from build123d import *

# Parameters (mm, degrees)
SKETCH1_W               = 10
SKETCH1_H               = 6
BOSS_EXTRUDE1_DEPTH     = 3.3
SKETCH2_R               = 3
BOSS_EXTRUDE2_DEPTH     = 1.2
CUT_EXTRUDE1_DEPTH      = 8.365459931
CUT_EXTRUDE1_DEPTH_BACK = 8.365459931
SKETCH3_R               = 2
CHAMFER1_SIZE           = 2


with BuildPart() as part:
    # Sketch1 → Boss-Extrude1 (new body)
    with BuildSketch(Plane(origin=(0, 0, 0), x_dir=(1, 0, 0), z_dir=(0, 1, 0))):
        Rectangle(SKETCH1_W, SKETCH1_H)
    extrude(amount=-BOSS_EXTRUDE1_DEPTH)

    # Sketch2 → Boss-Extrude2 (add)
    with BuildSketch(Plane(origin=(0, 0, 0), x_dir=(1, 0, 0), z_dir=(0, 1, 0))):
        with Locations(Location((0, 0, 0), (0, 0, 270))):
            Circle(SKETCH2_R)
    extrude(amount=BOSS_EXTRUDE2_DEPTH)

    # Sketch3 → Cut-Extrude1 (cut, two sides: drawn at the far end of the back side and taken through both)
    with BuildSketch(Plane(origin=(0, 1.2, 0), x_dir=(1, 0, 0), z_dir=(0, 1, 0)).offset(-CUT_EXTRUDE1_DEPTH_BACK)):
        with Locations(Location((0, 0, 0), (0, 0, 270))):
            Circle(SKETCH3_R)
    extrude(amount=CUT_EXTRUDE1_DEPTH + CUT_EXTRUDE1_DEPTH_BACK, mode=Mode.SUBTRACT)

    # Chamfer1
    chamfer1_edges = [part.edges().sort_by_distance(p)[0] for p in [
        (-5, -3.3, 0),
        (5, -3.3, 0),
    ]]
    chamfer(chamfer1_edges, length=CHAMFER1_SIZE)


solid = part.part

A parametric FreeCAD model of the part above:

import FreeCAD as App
import Part
import Sketcher
from FreeCAD import Vector
Q = App.Units.Quantity


def edges_at(feature, points):
    """Names of the edges that pass closest to the given points."""
    edges = feature.Shape.Edges
    near = lambda p: min(range(len(edges)), key=lambda i: edges[i].distToShape(Part.Vertex(*p))[0])
    return sorted({f"Edge{near(p) + 1}" for p in points})

doc = App.newDocument("Part")
body = doc.addObject("PartDesign::Body", "Body")

# Sketch on XZ plane
sketch1 = doc.addObject("Sketcher::SketchObject", "Sketch")
body.addObject(sketch1)
sketch1.AttachmentSupport = (doc.XZ_Plane, [""])
sketch1.MapMode = "FlatFace"
sketch1.addGeometry([
    Part.LineSegment(Vector(-5, -3, 0), Vector(-5, 3, 0)),
    Part.LineSegment(Vector(-5, 3, 0), Vector(5, 3, 0)),
    Part.LineSegment(Vector(5, 3, 0), Vector(5, -3, 0)),
    Part.LineSegment(Vector(5, -3, 0), Vector(-5, -3, 0)),
], False)
sketch1.addConstraint([
    Sketcher.Constraint("Coincident", 0, 2, 1, 1),
    Sketcher.Constraint("Coincident", 1, 2, 2, 1),
    Sketcher.Constraint("Coincident", 2, 2, 3, 1),
    Sketcher.Constraint("Coincident", 3, 2, 0, 1),
    Sketcher.Constraint("Vertical", 0),
    Sketcher.Constraint("Horizontal", 1),
    Sketcher.Constraint("Vertical", 2),
    Sketcher.Constraint("Horizontal", 3),
    Sketcher.Constraint("Symmetric", 0, 2, 2, 2, -1, 1),
    Sketcher.Constraint("DistanceX", 1, 1, 1, 2, Q("10 mm")),
    Sketcher.Constraint("DistanceY", 0, 1, 0, 2, Q("6 mm")),
])
pad1 = doc.addObject("PartDesign::Pad", "Pad")
body.addObject(pad1)
pad1.Profile = sketch1
pad1.Length = 3.3

# Sketch on XZ plane
sketch2 = doc.addObject("Sketcher::SketchObject", "Sketch001")
body.addObject(sketch2)
sketch2.AttachmentSupport = (doc.XZ_Plane, [""])
sketch2.MapMode = "FlatFace"
sketch2.addGeometry(Part.Circle(Vector(0, 0, 0), Vector(0, 0, 1), 3), False)
sketch2.addConstraint([
    Sketcher.Constraint("Coincident", 0, 3, -1, 1),
    Sketcher.Constraint("Diameter", 0, Q("6 mm")),
])
pad2 = doc.addObject("PartDesign::Pad", "Pad001")
body.addObject(pad2)
pad2.Profile = sketch2
pad2.Length = 1.2
pad2.Reversed = True

# Sketch on XZ plane
sketch3 = doc.addObject("Sketcher::SketchObject", "Sketch002")
body.addObject(sketch3)
sketch3.AttachmentSupport = (doc.XZ_Plane, [""])
sketch3.MapMode = "FlatFace"
sketch3.AttachmentOffset = App.Placement(Vector(0, 0, -1.2), App.Rotation())
sketch3.addGeometry(Part.Circle(Vector(0, 0, 0), Vector(0, 0, 1), 2), False)
sketch3.addConstraint([
    Sketcher.Constraint("Coincident", 0, 3, -1, 1),
    Sketcher.Constraint("Diameter", 0, Q("4 mm")),
])
pocket1 = doc.addObject("PartDesign::Pocket", "Pocket")
body.addObject(pocket1)
pocket1.Profile = sketch3
pocket1.Type = "ThroughAll"
pocket1.Midplane = True
doc.recompute()

chamfer = doc.addObject("PartDesign::Chamfer", "Chamfer")
body.addObject(chamfer)
chamfer.Base = (pocket1, edges_at(pocket1, [(-5, -3.3, 0), (5, -3.3, 0)]))
chamfer.Size = 2

doc.recompute()
